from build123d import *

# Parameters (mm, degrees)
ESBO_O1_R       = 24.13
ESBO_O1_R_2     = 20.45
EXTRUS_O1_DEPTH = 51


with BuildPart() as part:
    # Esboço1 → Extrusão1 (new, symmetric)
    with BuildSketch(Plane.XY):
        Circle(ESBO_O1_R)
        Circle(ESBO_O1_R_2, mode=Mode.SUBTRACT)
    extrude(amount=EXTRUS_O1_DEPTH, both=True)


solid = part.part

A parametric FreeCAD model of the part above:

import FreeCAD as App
import Part
import Sketcher
from FreeCAD import Vector
Q = App.Units.Quantity

doc = App.newDocument("Part")
body = doc.addObject("PartDesign::Body", "Body")

sketch1 = body.newObject("Sketcher::SketchObject", "Sketch")
sketch1.AttachmentSupport = (doc.getObject("XY_Plane"), [""])
sketch1.MapMode = "FlatFace"
sketch1.addGeometry([
    Part.Circle(Vector(0, 0, 0), Vector(0, 0, 1), 24.13),
    Part.Circle(Vector(0, 0, 0), Vector(0, 0, 1), 20.45),
], False)
sketch1.addConstraint([
    Sketcher.Constraint("Coincident", 0, 3, -1, 1),
    Sketcher.Constraint("Coincident", 1, 3, -1, 1),
    Sketcher.Constraint("Diameter", 1, Q("40.9 mm")),
    Sketcher.Constraint("Diameter", 0, Q("48.26 mm")),
])
pad1 = body.newObject("PartDesign::Pad", "Pad")
pad1.Profile = sketch1
pad1.Length = 102
pad1.Midplane = True

doc.recompute()
